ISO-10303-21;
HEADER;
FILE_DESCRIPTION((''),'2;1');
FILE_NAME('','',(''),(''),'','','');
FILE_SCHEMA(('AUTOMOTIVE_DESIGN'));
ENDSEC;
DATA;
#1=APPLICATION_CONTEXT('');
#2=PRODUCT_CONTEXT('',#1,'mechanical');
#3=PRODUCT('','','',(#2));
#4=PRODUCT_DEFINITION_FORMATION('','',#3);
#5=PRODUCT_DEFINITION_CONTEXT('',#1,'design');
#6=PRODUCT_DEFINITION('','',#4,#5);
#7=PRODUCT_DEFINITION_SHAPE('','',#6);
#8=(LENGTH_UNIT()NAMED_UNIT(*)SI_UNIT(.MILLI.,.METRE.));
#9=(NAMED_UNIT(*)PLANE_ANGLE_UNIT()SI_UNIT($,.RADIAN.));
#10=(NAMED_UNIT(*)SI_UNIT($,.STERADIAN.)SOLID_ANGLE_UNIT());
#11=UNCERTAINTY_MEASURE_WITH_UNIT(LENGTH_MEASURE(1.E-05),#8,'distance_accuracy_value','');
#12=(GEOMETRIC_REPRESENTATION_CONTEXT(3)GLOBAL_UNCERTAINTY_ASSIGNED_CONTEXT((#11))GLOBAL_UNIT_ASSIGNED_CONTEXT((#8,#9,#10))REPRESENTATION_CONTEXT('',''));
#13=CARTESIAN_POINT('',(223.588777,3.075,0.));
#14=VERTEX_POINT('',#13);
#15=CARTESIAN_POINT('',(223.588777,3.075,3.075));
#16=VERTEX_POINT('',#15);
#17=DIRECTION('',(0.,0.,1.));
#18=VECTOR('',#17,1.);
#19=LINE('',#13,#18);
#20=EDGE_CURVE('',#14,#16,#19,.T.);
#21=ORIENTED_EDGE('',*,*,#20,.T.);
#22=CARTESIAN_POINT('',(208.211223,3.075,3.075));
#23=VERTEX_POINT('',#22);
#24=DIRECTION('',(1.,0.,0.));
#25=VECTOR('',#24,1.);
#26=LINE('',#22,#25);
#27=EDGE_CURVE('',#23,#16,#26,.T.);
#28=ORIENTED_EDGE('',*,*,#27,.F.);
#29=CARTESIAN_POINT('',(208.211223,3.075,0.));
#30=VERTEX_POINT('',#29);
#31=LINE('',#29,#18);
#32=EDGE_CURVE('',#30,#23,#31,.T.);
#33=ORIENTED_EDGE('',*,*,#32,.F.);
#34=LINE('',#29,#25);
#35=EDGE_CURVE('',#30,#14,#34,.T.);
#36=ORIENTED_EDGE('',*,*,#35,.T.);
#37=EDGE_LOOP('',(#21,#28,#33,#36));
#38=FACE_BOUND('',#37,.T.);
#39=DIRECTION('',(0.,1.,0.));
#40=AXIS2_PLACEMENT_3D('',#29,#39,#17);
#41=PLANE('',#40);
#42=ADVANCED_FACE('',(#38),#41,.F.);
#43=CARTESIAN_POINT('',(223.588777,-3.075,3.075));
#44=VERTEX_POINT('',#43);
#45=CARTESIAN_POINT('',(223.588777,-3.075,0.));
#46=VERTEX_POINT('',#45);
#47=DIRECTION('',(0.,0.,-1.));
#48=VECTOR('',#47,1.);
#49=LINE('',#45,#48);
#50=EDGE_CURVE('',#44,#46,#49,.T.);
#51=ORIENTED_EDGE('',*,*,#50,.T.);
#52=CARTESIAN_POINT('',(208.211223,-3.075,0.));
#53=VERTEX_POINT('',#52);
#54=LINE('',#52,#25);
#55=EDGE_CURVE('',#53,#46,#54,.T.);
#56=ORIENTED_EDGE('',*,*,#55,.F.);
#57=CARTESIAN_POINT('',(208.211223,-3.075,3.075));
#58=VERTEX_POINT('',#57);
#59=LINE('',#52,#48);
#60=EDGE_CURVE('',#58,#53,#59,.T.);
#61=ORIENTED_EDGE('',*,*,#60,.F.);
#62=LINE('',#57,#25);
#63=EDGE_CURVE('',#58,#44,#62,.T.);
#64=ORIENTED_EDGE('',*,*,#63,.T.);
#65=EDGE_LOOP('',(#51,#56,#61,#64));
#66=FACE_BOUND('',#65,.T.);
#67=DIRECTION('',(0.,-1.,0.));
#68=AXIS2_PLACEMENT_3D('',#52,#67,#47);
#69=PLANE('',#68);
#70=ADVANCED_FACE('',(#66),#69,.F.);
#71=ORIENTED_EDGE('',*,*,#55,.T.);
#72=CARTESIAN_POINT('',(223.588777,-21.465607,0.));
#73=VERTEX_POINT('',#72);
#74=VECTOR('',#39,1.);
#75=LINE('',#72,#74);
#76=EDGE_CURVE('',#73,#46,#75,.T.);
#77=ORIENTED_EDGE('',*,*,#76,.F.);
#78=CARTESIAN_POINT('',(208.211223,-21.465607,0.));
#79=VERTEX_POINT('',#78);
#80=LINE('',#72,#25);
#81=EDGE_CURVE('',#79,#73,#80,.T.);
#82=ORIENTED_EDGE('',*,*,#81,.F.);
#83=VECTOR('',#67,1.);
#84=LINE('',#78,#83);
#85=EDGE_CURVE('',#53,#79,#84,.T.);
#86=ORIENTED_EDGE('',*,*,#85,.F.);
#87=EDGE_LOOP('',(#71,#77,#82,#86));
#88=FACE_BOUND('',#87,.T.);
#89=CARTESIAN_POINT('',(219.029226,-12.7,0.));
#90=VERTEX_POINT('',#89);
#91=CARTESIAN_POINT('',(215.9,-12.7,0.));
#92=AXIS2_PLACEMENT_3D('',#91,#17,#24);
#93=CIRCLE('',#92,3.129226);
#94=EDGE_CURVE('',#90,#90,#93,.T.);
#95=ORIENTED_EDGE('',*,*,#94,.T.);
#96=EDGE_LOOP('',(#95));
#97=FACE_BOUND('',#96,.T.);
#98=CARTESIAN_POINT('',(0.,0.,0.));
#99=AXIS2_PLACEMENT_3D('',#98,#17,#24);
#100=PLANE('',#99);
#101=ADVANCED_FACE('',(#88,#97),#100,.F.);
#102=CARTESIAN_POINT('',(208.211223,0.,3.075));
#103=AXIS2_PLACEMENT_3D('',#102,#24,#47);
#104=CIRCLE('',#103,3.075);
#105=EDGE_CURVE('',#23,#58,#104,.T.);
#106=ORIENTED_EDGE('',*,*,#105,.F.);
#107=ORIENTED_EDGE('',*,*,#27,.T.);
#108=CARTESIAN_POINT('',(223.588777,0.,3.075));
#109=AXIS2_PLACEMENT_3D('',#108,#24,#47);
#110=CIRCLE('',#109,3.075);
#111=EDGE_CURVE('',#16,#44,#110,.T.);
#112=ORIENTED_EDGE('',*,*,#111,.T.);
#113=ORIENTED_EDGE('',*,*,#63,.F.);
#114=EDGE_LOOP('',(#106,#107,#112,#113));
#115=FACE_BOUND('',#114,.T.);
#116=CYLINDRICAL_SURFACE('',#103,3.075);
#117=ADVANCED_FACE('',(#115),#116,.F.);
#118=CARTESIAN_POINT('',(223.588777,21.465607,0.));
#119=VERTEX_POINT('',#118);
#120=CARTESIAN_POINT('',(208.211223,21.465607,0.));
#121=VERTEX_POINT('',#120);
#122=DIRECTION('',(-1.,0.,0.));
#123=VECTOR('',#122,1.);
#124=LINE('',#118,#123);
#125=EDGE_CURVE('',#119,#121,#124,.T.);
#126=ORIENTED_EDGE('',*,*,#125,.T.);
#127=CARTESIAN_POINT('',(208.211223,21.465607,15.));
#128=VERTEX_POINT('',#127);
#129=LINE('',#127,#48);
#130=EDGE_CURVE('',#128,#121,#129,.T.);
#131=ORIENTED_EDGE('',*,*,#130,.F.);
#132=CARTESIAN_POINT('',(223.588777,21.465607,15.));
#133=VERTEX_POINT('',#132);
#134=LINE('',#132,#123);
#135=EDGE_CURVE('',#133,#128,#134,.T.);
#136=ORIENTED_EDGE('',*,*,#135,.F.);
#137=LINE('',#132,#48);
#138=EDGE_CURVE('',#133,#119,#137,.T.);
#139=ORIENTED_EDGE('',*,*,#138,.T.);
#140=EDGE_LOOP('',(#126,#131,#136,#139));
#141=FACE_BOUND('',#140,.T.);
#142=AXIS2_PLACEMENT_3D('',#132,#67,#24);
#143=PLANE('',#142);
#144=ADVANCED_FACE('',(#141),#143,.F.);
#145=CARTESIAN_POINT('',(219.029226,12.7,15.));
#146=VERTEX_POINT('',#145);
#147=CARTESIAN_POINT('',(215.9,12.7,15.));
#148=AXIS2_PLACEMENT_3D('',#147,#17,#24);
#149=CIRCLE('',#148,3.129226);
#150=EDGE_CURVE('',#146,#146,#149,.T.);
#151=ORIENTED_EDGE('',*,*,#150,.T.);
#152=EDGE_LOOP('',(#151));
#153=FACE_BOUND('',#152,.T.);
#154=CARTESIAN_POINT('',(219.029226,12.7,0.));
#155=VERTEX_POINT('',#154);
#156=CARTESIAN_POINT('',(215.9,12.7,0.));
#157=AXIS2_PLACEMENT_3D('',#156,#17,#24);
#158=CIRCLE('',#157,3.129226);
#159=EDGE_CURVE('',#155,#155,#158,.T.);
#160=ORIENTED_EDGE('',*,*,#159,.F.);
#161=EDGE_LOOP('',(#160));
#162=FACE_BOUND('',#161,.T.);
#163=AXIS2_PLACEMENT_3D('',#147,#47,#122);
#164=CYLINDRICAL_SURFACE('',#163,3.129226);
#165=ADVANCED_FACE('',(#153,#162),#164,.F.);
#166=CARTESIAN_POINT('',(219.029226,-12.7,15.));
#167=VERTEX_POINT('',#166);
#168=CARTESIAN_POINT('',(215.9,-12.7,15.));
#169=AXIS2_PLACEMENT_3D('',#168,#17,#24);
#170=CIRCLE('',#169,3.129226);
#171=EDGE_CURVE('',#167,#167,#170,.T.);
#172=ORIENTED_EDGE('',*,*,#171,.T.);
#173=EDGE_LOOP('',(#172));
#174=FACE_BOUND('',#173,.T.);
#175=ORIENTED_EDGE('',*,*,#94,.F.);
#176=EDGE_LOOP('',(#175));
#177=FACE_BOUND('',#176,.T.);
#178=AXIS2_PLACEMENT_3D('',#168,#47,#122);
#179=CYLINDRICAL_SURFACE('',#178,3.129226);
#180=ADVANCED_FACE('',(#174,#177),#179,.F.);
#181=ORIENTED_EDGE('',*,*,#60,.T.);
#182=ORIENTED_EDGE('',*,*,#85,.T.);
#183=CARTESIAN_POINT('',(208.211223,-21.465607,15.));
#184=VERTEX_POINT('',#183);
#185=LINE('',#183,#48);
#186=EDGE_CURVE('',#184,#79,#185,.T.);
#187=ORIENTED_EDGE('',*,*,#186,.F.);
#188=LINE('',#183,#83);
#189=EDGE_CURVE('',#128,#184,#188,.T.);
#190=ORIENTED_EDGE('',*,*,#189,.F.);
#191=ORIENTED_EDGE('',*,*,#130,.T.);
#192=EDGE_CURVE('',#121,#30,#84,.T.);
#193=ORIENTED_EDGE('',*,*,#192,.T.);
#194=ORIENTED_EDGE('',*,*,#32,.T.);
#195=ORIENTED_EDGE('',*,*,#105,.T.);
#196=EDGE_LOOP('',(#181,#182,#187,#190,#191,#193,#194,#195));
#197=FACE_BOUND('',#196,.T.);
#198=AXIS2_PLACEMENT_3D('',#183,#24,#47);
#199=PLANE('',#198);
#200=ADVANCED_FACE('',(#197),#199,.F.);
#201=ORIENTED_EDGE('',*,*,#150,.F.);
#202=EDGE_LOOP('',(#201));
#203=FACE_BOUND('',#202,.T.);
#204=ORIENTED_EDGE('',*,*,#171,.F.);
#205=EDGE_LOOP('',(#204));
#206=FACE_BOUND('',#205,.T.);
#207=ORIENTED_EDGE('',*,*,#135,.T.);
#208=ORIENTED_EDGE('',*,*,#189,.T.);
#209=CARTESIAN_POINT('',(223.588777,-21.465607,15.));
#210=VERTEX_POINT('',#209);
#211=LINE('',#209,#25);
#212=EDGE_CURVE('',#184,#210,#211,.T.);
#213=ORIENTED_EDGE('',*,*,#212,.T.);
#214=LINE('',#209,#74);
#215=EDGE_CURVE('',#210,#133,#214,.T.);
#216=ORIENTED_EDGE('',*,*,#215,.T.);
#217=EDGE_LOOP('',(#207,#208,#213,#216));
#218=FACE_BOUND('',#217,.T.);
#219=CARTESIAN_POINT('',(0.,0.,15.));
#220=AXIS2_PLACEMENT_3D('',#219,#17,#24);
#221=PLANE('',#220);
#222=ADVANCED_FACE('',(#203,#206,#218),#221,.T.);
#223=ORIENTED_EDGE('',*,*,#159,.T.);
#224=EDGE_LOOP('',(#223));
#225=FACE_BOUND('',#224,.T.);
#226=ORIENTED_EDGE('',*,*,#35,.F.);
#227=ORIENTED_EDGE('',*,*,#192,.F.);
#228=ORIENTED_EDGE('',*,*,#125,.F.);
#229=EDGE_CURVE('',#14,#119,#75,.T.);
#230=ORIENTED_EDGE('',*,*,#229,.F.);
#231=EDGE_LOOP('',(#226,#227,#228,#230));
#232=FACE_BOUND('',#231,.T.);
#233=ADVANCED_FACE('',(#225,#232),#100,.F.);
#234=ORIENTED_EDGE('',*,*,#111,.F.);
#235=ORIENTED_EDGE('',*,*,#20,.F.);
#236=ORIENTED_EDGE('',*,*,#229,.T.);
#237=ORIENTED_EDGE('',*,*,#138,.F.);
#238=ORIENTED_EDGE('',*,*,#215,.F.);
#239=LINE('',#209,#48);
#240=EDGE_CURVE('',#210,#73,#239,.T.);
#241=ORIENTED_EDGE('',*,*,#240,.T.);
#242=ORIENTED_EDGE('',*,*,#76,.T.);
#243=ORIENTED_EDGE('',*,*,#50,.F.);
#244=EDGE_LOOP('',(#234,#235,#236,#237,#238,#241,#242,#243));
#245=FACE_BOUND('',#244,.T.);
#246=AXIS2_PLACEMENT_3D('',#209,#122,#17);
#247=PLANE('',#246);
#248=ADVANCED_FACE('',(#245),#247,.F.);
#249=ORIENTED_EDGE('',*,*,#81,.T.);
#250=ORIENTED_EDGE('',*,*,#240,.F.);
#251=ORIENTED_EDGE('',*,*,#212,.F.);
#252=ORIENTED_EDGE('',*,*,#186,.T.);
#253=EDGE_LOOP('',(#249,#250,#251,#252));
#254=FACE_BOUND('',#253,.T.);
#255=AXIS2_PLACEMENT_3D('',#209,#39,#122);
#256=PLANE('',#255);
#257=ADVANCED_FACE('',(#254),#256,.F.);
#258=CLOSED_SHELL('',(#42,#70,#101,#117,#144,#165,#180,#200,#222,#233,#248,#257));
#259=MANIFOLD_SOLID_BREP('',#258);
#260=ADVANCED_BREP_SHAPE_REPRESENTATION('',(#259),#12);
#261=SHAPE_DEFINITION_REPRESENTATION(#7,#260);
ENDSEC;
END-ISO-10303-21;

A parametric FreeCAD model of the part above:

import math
import FreeCAD as App
import Part
import Sketcher
Q = App.Units.Quantity


def add_polygon(sketch, points):
    """Adds a closed chain of lines whose ends are joined by coincident constraints."""
    first, n = sketch.GeometryCount, len(points)
    for a, b in zip(points, points[1:] + points[:1]):
        sketch.addGeometry(Part.LineSegment(App.Vector(*a, 0), App.Vector(*b, 0)), False)
    for i in range(n):
        sketch.addConstraint(Sketcher.Constraint("Coincident", first + i, 2, first + (i + 1) % n, 1))

doc = App.newDocument("Part")
body = doc.addObject("PartDesign::Body", "Body")

# Sketch on XY plane
sketch1 = body.newObject("Sketcher::SketchObject", "Sketch")
sketch1.AttachmentSupport = (doc.getObject("XY_Plane"), [""])
sketch1.MapMode = "FlatFace"
add_polygon(sketch1, [(208.211223, 21.465607), (208.211223, -21.465607), (223.588777, -21.465607), (223.588777, 21.465607)])  # lines 0-3
sketch1.addGeometry(Part.Circle(App.Vector(215.9, -12.7, 0), App.Vector(0, 0, 1), 3.129226), False)  # 4
sketch1.addGeometry(Part.Circle(App.Vector(215.9, 12.7, 0), App.Vector(0, 0, 1), 3.129226), False)  # 5
sketch1.addConstraint([
    Sketcher.Constraint("Vertical", 0),
    Sketcher.Constraint("Horizontal", 1),
    Sketcher.Constraint("Vertical", 2),
    Sketcher.Constraint("Horizontal", 3),
    Sketcher.Constraint("Equal", 4, 5),
    Sketcher.Constraint("Symmetric", 4, 3, 5, 3, -1),
    Sketcher.Constraint("DistanceX", -1, 1, 4, 3, Q("215.9 mm")),
    Sketcher.Constraint("DistanceY", 4, 3, -1, 1, Q("12.7 mm")),
    Sketcher.Constraint("Diameter", 4, Q("6.258451 mm")),
    Sketcher.Constraint("DistanceX", 1, 1, 1, 2, Q("15.377555 mm")),
    Sketcher.Constraint("DistanceY", 0, 2, 0, 1, Q("42.931214 mm")),
    Sketcher.Constraint("DistanceX", -1, 1, 0, 2, Q("208.211223 mm")),
    Sketcher.Constraint("DistanceY", 0, 2, -1, 1, Q("21.465607 mm")),
])
pad1 = body.newObject("PartDesign::Pad", "Pad")
pad1.Profile = sketch1
pad1.Length = 15

# Sketch on YZ plane
sketch2 = body.newObject("Sketcher::SketchObject", "Sketch001")
sketch2.AttachmentSupport = (doc.getObject("YZ_Plane"), [""])
sketch2.MapMode = "FlatFace"
sketch2.AttachmentOffset = App.Placement(App.Vector(0, 0, 223.588777), App.Rotation())
sketch2.addGeometry([
    Part.LineSegment(App.Vector(-3.075, 3.075, 0), App.Vector(-3.075, 0, 0)),
    Part.ArcOfCircle(Part.Circle(App.Vector(0, 0, 0), App.Vector(0, 0, 1), 3.075), math.radians(180), math.radians(360)),
    Part.LineSegment(App.Vector(3.075, 0, 0), App.Vector(3.075, 3.075, 0)),
    Part.ArcOfCircle(Part.Circle(App.Vector(0, 3.075, 0), App.Vector(0, 0, 1), 3.075), math.radians(0), math.radians(180)),
], False)
sketch2.addConstraint([
    Sketcher.Constraint("Tangent", 0, 2, 1, 1),
    Sketcher.Constraint("Tangent", 1, 2, 2, 1),
    Sketcher.Constraint("Tangent", 2, 2, 3, 1),
    Sketcher.Constraint("Tangent", 3, 2, 0, 1),
    Sketcher.Constraint("Vertical", 0),
    Sketcher.Constraint("Vertical", 2),
    Sketcher.Constraint("Coincident", 1, 3, -1, 1),
    Sketcher.Constraint("Radius", 1, Q("3.075 mm")),
    Sketcher.Constraint("DistanceY", 0, 2, 0, 1, Q("3.075 mm")),
])
pocket1 = body.newObject("PartDesign::Pocket", "Pocket")
pocket1.Profile = sketch2
pocket1.Type = "ThroughAll"
pocket1.Midplane = True

doc.recompute()
